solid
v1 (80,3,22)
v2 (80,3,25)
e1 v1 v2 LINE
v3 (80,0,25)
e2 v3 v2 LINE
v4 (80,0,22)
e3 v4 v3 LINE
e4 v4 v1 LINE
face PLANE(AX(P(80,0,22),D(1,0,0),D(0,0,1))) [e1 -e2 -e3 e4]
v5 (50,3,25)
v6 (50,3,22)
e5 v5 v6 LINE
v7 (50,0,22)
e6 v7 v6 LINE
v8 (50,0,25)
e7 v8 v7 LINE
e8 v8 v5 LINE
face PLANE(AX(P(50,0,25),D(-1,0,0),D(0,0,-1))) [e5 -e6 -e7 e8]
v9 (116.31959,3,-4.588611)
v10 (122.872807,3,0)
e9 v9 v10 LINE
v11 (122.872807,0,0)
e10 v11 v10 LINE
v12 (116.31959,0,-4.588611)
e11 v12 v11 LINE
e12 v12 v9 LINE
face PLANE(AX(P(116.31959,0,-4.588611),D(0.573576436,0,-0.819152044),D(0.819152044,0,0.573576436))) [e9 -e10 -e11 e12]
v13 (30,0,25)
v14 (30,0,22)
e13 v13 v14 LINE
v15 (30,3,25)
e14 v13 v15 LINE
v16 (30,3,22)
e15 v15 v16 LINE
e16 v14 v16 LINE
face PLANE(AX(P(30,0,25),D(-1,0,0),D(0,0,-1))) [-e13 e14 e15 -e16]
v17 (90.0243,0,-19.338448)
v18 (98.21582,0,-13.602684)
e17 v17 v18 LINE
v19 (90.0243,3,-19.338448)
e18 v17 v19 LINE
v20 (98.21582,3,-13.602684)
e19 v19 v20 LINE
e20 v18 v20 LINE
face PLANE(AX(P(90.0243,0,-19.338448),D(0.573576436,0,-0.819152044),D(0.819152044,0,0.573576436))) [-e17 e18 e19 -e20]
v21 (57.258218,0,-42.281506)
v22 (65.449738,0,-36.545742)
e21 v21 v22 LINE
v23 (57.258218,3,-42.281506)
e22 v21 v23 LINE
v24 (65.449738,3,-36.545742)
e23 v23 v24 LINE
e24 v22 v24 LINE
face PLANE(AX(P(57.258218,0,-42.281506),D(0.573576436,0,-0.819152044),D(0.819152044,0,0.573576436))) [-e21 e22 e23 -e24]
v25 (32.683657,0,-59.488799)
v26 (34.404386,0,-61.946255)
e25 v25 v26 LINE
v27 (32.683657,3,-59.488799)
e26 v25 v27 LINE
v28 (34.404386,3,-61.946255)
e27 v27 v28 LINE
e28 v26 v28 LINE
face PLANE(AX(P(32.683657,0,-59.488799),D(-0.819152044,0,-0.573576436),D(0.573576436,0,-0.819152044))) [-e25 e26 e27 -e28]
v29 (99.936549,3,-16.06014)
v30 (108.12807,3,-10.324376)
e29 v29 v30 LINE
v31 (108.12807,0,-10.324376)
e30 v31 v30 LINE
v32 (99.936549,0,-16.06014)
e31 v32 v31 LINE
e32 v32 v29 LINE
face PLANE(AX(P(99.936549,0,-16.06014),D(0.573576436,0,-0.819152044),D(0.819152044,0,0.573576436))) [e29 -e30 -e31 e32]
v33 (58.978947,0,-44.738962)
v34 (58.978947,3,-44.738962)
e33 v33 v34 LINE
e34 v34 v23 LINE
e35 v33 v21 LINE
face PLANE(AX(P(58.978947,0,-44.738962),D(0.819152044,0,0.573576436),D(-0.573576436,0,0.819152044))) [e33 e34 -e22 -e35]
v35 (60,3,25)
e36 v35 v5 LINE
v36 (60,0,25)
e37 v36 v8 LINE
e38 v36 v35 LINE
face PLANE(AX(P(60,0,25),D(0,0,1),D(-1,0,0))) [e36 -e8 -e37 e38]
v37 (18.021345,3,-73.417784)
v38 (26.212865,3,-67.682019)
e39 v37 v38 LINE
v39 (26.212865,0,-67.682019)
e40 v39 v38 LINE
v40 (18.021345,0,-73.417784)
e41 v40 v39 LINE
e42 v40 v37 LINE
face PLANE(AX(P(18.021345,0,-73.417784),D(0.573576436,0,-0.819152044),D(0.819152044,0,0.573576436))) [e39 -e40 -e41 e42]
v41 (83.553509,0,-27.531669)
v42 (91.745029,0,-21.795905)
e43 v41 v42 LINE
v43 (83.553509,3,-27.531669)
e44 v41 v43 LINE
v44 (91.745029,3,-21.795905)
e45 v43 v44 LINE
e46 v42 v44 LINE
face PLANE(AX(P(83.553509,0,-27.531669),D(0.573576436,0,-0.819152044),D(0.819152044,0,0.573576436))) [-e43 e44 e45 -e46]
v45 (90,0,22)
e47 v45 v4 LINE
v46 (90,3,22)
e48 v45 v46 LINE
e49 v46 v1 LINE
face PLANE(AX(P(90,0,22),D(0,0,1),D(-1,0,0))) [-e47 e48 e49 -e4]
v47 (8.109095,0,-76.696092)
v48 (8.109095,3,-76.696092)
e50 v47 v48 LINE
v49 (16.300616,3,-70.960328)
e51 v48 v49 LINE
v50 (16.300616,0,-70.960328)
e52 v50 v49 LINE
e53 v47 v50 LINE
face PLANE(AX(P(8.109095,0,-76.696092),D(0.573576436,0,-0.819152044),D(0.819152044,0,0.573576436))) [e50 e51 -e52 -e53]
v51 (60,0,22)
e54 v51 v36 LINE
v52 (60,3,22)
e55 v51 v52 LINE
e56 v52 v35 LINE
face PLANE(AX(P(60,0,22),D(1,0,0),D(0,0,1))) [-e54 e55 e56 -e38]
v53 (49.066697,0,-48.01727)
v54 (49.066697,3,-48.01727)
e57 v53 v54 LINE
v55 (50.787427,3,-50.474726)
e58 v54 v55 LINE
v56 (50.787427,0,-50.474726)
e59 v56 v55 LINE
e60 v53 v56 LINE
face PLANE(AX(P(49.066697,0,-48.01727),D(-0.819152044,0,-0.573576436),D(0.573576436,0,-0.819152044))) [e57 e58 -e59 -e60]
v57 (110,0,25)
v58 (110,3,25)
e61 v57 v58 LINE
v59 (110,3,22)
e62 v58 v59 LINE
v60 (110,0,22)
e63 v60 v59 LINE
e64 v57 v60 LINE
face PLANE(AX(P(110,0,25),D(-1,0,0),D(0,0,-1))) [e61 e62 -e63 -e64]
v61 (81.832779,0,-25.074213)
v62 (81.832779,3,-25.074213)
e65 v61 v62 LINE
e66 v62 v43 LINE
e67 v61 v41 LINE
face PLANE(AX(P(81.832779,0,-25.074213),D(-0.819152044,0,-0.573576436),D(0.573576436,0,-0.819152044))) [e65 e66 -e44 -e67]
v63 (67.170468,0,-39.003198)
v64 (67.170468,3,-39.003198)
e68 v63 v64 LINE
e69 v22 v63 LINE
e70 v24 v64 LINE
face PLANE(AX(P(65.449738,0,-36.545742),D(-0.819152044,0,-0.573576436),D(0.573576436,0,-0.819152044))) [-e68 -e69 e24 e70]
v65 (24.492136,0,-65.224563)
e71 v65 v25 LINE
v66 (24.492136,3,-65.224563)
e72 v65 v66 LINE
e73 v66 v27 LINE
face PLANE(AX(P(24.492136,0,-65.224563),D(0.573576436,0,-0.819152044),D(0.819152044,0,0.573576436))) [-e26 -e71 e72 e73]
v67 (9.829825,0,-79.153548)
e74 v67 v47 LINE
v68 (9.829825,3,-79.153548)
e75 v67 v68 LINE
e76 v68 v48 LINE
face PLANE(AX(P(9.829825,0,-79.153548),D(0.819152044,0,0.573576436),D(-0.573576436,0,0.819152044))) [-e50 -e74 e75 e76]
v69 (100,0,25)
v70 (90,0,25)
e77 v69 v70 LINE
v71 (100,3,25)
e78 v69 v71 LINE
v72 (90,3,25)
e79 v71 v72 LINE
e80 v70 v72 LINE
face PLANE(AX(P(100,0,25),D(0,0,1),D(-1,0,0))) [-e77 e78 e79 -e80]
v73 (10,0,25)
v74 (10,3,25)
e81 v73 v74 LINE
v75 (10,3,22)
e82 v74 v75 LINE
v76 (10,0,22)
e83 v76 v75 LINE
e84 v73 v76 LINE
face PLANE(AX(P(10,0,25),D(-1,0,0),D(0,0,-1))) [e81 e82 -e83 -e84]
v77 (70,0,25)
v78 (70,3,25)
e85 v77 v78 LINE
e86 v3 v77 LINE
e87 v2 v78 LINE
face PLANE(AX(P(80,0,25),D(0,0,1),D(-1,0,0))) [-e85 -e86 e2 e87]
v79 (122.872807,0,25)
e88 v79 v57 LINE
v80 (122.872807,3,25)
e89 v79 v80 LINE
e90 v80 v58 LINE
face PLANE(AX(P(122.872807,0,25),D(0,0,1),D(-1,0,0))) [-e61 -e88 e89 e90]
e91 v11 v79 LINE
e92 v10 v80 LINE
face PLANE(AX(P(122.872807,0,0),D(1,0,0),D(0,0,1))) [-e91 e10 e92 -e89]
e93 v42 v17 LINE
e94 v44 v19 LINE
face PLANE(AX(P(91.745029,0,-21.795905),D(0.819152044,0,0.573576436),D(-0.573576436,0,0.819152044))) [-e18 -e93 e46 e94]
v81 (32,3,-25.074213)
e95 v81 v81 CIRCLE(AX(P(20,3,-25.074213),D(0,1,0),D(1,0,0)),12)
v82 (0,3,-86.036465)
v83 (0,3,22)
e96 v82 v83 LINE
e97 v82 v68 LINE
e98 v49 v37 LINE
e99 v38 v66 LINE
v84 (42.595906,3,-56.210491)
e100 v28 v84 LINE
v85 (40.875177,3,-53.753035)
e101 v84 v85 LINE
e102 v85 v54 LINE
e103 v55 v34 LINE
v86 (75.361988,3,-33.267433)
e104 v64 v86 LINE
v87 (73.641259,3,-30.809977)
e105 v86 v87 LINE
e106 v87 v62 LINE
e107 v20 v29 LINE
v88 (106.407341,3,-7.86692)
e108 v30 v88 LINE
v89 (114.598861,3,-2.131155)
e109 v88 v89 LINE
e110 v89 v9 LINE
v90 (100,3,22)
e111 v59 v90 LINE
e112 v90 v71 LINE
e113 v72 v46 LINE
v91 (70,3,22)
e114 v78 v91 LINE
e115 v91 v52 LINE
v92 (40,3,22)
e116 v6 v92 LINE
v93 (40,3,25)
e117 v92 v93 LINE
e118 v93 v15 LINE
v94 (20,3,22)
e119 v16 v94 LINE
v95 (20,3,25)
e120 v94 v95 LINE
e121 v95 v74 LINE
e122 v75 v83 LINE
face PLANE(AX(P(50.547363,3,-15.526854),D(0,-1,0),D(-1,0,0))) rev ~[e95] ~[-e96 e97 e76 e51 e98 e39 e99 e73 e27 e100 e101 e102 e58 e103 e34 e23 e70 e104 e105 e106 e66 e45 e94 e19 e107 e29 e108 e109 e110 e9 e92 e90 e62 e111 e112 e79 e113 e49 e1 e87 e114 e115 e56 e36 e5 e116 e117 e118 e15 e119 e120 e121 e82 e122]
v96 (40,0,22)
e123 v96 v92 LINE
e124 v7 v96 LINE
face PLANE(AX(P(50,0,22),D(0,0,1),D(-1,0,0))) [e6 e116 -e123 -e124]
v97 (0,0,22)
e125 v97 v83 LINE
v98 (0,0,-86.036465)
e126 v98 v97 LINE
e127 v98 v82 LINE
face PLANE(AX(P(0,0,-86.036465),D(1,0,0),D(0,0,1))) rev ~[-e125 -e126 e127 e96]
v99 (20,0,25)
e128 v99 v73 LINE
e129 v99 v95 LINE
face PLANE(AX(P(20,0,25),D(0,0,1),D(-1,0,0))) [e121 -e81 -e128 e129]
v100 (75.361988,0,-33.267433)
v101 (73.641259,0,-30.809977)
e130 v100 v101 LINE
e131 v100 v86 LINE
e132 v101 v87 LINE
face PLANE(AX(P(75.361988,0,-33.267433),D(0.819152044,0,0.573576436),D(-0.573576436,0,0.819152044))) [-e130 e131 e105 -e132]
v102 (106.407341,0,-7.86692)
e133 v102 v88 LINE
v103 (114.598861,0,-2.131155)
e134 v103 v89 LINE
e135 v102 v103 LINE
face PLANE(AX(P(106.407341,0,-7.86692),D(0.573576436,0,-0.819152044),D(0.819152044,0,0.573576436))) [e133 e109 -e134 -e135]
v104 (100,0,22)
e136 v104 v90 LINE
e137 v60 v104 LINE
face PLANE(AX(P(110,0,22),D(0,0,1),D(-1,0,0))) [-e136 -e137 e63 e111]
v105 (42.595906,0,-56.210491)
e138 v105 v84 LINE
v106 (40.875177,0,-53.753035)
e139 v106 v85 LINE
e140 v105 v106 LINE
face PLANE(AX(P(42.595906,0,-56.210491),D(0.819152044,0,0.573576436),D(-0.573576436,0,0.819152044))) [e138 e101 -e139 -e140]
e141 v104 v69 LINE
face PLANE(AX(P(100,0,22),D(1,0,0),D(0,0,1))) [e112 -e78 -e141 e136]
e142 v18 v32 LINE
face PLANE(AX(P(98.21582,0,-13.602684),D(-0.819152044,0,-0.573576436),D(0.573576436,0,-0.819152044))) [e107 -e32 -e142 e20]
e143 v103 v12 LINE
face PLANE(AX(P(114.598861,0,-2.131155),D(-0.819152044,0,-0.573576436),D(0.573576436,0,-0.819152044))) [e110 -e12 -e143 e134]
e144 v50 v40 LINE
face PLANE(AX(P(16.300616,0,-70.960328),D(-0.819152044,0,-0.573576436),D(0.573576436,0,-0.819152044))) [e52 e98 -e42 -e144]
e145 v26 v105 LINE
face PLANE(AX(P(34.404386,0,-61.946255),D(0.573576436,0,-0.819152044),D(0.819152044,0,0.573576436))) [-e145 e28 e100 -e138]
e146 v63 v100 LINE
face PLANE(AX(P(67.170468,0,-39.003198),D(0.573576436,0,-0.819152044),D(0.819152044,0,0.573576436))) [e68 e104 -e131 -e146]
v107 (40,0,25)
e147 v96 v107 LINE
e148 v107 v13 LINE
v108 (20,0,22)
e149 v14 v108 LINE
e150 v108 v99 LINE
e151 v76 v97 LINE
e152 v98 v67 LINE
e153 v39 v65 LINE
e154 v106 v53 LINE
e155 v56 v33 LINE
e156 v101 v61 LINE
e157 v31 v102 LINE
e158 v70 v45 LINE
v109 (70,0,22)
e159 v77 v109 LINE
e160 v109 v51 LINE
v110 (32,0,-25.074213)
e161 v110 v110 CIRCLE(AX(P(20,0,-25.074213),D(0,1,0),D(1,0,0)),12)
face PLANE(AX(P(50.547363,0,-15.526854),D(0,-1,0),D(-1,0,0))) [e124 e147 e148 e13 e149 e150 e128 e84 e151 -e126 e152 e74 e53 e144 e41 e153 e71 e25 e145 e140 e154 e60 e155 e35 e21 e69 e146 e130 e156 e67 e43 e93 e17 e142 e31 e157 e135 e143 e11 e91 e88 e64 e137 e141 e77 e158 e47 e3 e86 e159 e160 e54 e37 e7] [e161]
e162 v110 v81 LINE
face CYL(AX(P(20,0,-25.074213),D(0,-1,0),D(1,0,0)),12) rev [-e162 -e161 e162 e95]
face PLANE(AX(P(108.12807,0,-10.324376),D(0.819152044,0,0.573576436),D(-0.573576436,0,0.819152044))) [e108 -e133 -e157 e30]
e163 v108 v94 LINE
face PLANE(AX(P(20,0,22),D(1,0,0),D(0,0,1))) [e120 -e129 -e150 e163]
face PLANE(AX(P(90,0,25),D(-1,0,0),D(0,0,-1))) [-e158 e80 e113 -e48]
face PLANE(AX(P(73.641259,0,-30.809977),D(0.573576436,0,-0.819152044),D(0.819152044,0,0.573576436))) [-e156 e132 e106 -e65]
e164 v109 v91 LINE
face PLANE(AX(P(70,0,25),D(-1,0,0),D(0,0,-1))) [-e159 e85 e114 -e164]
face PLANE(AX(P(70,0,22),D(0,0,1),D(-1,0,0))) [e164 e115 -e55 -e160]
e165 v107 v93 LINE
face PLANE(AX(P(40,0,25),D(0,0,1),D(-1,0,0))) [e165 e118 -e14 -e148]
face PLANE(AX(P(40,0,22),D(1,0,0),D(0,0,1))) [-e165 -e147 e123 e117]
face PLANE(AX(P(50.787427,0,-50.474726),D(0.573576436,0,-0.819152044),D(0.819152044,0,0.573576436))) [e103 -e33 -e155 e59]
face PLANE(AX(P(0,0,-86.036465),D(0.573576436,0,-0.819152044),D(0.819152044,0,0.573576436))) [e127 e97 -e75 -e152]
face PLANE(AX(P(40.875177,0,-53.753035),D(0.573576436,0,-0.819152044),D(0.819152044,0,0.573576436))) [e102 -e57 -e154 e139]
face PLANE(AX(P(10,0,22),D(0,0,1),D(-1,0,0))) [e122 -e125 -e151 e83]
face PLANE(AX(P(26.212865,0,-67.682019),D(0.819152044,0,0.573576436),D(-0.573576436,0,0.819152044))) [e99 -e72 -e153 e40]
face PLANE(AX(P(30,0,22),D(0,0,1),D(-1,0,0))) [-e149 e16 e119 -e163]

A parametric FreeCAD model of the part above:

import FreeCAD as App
import Part
import Sketcher
Q = App.Units.Quantity

doc = App.newDocument("Part")
body = doc.addObject("PartDesign::Body", "Body")

# Sketch on XZ plane
sketch1 = doc.addObject("Sketcher::SketchObject", "Sketch")
body.addObject(sketch1)
sketch1.AttachmentSupport = (doc.XZ_Plane, [""])
sketch1.MapMode = "FlatFace"
sketch1.addGeometry([
    Part.LineSegment(App.Vector(0, -86, 0), App.Vector(0, 22, 0)),  # 0
    Part.LineSegment(App.Vector(0, 22, 0), App.Vector(10, 22, 0)),  # 1
    Part.LineSegment(App.Vector(10, 22, 0), App.Vector(10, 25, 0)),  # 2
    Part.LineSegment(App.Vector(10, 25, 0), App.Vector(20, 25, 0)),  # 3
    Part.LineSegment(App.Vector(20, 25, 0), App.Vector(20, 22, 0)),  # 4
    Part.LineSegment(App.Vector(20, 22, 0), App.Vector(30, 22, 0)),  # 5
    Part.LineSegment(App.Vector(30, 22, 0), App.Vector(30, 25, 0)),  # 6
    Part.LineSegment(App.Vector(30, 25, 0), App.Vector(40, 25, 0)),  # 7
    Part.LineSegment(App.Vector(40, 25, 0), App.Vector(40, 22, 0)),  # 8
    Part.LineSegment(App.Vector(40, 22, 0), App.Vector(50, 22, 0)),  # 9
    Part.LineSegment(App.Vector(50, 22, 0), App.Vector(50, 25, 0)),  # 10
    Part.LineSegment(App.Vector(50, 25, 0), App.Vector(60, 25, 0)),  # 11
    Part.LineSegment(App.Vector(60, 25, 0), App.Vector(60, 22, 0)),  # 12
    Part.LineSegment(App.Vector(60, 22, 0), App.Vector(70, 22, 0)),  # 13
    Part.LineSegment(App.Vector(70, 22, 0), App.Vector(70, 25, 0)),  # 14
    Part.LineSegment(App.Vector(70, 25, 0), App.Vector(80, 25, 0)),  # 15
    Part.LineSegment(App.Vector(80, 25, 0), App.Vector(80, 22, 0)),  # 16
    Part.LineSegment(App.Vector(80, 22, 0), App.Vector(90, 22, 0)),  # 17
    Part.LineSegment(App.Vector(90, 22, 0), App.Vector(90, 25, 0)),  # 18
    Part.LineSegment(App.Vector(90, 25, 0), App.Vector(100, 25, 0)),  # 19
    Part.LineSegment(App.Vector(100, 25, 0), App.Vector(100, 22, 0)),  # 20
    Part.LineSegment(App.Vector(100, 22, 0), App.Vector(110, 22, 0)),  # 21
    Part.LineSegment(App.Vector(110, 22, 0), App.Vector(110, 25, 0)),  # 22
    Part.LineSegment(App.Vector(110, 25, 0), App.Vector(122.9, 25, 0)),  # 23
    Part.LineSegment(App.Vector(122.9, 25, 0), App.Vector(122.9, 0, 0)),  # 24
    Part.LineSegment(App.Vector(122.9, 0, 0), App.Vector(116.3, -4.6, 0)),  # 25
    Part.LineSegment(App.Vector(116.3, -4.6, 0), App.Vector(114.6, -2.1, 0)),  # 26
    Part.LineSegment(App.Vector(114.6, -2.1, 0), App.Vector(106.4, -7.9, 0)),  # 27
    Part.LineSegment(App.Vector(106.4, -7.9, 0), App.Vector(108.1, -10.3, 0)),  # 28
    Part.LineSegment(App.Vector(108.1, -10.3, 0), App.Vector(99.9, -16.1, 0)),  # 29
    Part.LineSegment(App.Vector(99.9, -16.1, 0), App.Vector(98.2, -13.6, 0)),  # 30
    Part.LineSegment(App.Vector(98.2, -13.6, 0), App.Vector(90, -19.3, 0)),  # 31
    Part.LineSegment(App.Vector(90, -19.3, 0), App.Vector(91.7, -21.8, 0)),  # 32
    Part.LineSegment(App.Vector(91.7, -21.8, 0), App.Vector(83.6, -27.5, 0)),  # 33
    Part.LineSegment(App.Vector(83.6, -27.5, 0), App.Vector(81.8, -25.1, 0)),  # 34
    Part.LineSegment(App.Vector(81.8, -25.1, 0), App.Vector(73.6, -30.8, 0)),  # 35
    Part.LineSegment(App.Vector(73.6, -30.8, 0), App.Vector(75.4, -33.3, 0)),  # 36
    Part.LineSegment(App.Vector(75.4, -33.3, 0), App.Vector(67.2, -39, 0)),  # 37
    Part.LineSegment(App.Vector(67.2, -39, 0), App.Vector(65.4, -36.5, 0)),  # 38
    Part.LineSegment(App.Vector(65.4, -36.5, 0), App.Vector(57.3, -42.3, 0)),  # 39
    Part.LineSegment(App.Vector(57.3, -42.3, 0), App.Vector(59, -44.7, 0)),  # 40
    Part.LineSegment(App.Vector(59, -44.7, 0), App.Vector(50.8, -50.5, 0)),  # 41
    Part.LineSegment(App.Vector(50.8, -50.5, 0), App.Vector(49.1, -48, 0)),  # 42
    Part.LineSegment(App.Vector(49.1, -48, 0), App.Vector(40.9, -53.8, 0)),  # 43
    Part.LineSegment(App.Vector(40.9, -53.8, 0), App.Vector(42.6, -56.2, 0)),  # 44
    Part.LineSegment(App.Vector(42.6, -56.2, 0), App.Vector(34.4, -61.9, 0)),  # 45
    Part.LineSegment(App.Vector(34.4, -61.9, 0), App.Vector(32.7, -59.5, 0)),  # 46
    Part.LineSegment(App.Vector(32.7, -59.5, 0), App.Vector(24.5, -65.2, 0)),  # 47
    Part.LineSegment(App.Vector(24.5, -65.2, 0), App.Vector(26.2, -67.7, 0)),  # 48
    Part.LineSegment(App.Vector(26.2, -67.7, 0), App.Vector(18, -73.4, 0)),  # 49
    Part.LineSegment(App.Vector(18, -73.4, 0), App.Vector(16.3, -71, 0)),  # 50
    Part.LineSegment(App.Vector(16.3, -71, 0), App.Vector(8.1, -76.7, 0)),  # 51
    Part.LineSegment(App.Vector(8.1, -76.7, 0), App.Vector(9.8, -79.2, 0)),  # 52
    Part.LineSegment(App.Vector(9.8, -79.2, 0), App.Vector(0, -86, 0)),  # 53
    Part.Circle(App.Vector(20, -25.1, 0), App.Vector(0, 0, 1), 12),  # 54
], False)
sketch1.addConstraint([
    Sketcher.Constraint("Coincident", 0, 2, 1, 1),
    Sketcher.Constraint("Coincident", 1, 2, 2, 1),
    Sketcher.Constraint("Coincident", 2, 2, 3, 1),
    Sketcher.Constraint("Coincident", 3, 2, 4, 1),
    Sketcher.Constraint("Coincident", 4, 2, 5, 1),
    Sketcher.Constraint("Coincident", 5, 2, 6, 1),
    Sketcher.Constraint("Coincident", 6, 2, 7, 1),
    Sketcher.Constraint("Coincident", 7, 2, 8, 1),
    Sketcher.Constraint("Coincident", 8, 2, 9, 1),
    Sketcher.Constraint("Coincident", 9, 2, 10, 1),
    Sketcher.Constraint("Coincident", 10, 2, 11, 1),
    Sketcher.Constraint("Coincident", 11, 2, 12, 1),
    Sketcher.Constraint("Coincident", 12, 2, 13, 1),
    Sketcher.Constraint("Coincident", 13, 2, 14, 1),
    Sketcher.Constraint("Coincident", 14, 2, 15, 1),
    Sketcher.Constraint("Coincident", 15, 2, 16, 1),
    Sketcher.Constraint("Coincident", 16, 2, 17, 1),
    Sketcher.Constraint("Coincident", 17, 2, 18, 1),
    Sketcher.Constraint("Coincident", 18, 2, 19, 1),
    Sketcher.Constraint("Coincident", 19, 2, 20, 1),
    Sketcher.Constraint("Coincident", 20, 2, 21, 1),
    Sketcher.Constraint("Coincident", 21, 2, 22, 1),
    Sketcher.Constraint("Coincident", 22, 2, 23, 1),
    Sketcher.Constraint("Coincident", 23, 2, 24, 1),
    Sketcher.Constraint("Coincident", 24, 2, 25, 1),
    Sketcher.Constraint("Coincident", 25, 2, 26, 1),
    Sketcher.Constraint("Coincident", 26, 2, 27, 1),
    Sketcher.Constraint("Coincident", 27, 2, 28, 1),
    Sketcher.Constraint("Coincident", 28, 2, 29, 1),
    Sketcher.Constraint("Coincident", 29, 2, 30, 1),
    Sketcher.Constraint("Coincident", 30, 2, 31, 1),
    Sketcher.Constraint("Coincident", 31, 2, 32, 1),
    Sketcher.Constraint("Coincident", 32, 2, 33, 1),
    Sketcher.Constraint("Coincident", 33, 2, 34, 1),
    Sketcher.Constraint("Coincident", 34, 2, 35, 1),
    Sketcher.Constraint("Coincident", 35, 2, 36, 1),
    Sketcher.Constraint("Coincident", 36, 2, 37, 1),
    Sketcher.Constraint("Coincident", 37, 2, 38, 1),
    Sketcher.Constraint("Coincident", 38, 2, 39, 1),
    Sketcher.Constraint("Coincident", 39, 2, 40, 1),
    Sketcher.Constraint("Coincident", 40, 2, 41, 1),
    Sketcher.Constraint("Coincident", 41, 2, 42, 1),
    Sketcher.Constraint("Coincident", 42, 2, 43, 1),
    Sketcher.Constraint("Coincident", 43, 2, 44, 1),
    Sketcher.Constraint("Coincident", 44, 2, 45, 1),
    Sketcher.Constraint("Coincident", 45, 2, 46, 1),
    Sketcher.Constraint("Coincident", 46, 2, 47, 1),
    Sketcher.Constraint("Coincident", 47, 2, 48, 1),
    Sketcher.Constraint("Coincident", 48, 2, 49, 1),
    Sketcher.Constraint("Coincident", 49, 2, 50, 1),
    Sketcher.Constraint("Coincident", 50, 2, 51, 1),
    Sketcher.Constraint("Coincident", 51, 2, 52, 1),
    Sketcher.Constraint("Coincident", 52, 2, 53, 1),
    Sketcher.Constraint("Coincident", 53, 2, 0, 1),
    Sketcher.Constraint("Vertical", 0),
    Sketcher.Constraint("Horizontal", 1),
    Sketcher.Constraint("Vertical", 2),
    Sketcher.Constraint("Horizontal", 3),
    Sketcher.Constraint("Vertical", 4),
    Sketcher.Constraint("Horizontal", 5),
    Sketcher.Constraint("Vertical", 6),
    Sketcher.Constraint("Horizontal", 7),
    Sketcher.Constraint("Vertical", 8),
    Sketcher.Constraint("Horizontal", 9),
    Sketcher.Constraint("Vertical", 10),
    Sketcher.Constraint("Horizontal", 11),
    Sketcher.Constraint("Vertical", 12),
    Sketcher.Constraint("Horizontal", 13),
    Sketcher.Constraint("Vertical", 14),
    Sketcher.Constraint("Horizontal", 15),
    Sketcher.Constraint("Vertical", 16),
    Sketcher.Constraint("Horizontal", 17),
    Sketcher.Constraint("Vertical", 18),
    Sketcher.Constraint("Horizontal", 19),
    Sketcher.Constraint("Vertical", 20),
    Sketcher.Constraint("Horizontal", 21),
    Sketcher.Constraint("Vertical", 22),
    Sketcher.Constraint("Horizontal", 23),
    Sketcher.Constraint("Vertical", 24),
    Sketcher.Constraint("PointOnObject", 0, 2, -2),
    Sketcher.Constraint("PointOnObject", 24, 2, -1),
    Sketcher.Constraint("Perpendicular", 25, 26),
    Sketcher.Constraint("Perpendicular", 26, 27),
    Sketcher.Constraint("Perpendicular", 27, 28),
    Sketcher.Constraint("Perpendicular", 28, 29),
    Sketcher.Constraint("Perpendicular", 29, 30),
    Sketcher.Constraint("Perpendicular", 30, 31),
    Sketcher.Constraint("Perpendicular", 31, 32),
    Sketcher.Constraint("Perpendicular", 32, 33),
    Sketcher.Constraint("Perpendicular", 33, 34),
    Sketcher.Constraint("Perpendicular", 34, 35),
    Sketcher.Constraint("Perpendicular", 35, 36),
    Sketcher.Constraint("Perpendicular", 36, 37),
    Sketcher.Constraint("Perpendicular", 37, 38),
    Sketcher.Constraint("Perpendicular", 38, 39),
    Sketcher.Constraint("Perpendicular", 39, 40),
    Sketcher.Constraint("Perpendicular", 40, 41),
    Sketcher.Constraint("Perpendicular", 41, 42),
    Sketcher.Constraint("Perpendicular", 42, 43),
    Sketcher.Constraint("Perpendicular", 43, 44),
    Sketcher.Constraint("Perpendicular", 44, 45),
    Sketcher.Constraint("Perpendicular", 45, 46),
    Sketcher.Constraint("Perpendicular", 46, 47),
    Sketcher.Constraint("Perpendicular", 47, 48),
    Sketcher.Constraint("Perpendicular", 48, 49),
    Sketcher.Constraint("Perpendicular", 49, 50),
    Sketcher.Constraint("Perpendicular", 50, 51),
    Sketcher.Constraint("Perpendicular", 51, 52),
    Sketcher.Constraint("Perpendicular", 52, 53),
    Sketcher.Constraint("Horizontal", 1, 2, 4, 2),
    Sketcher.Constraint("Horizontal", 3, 2, 6, 2),
    Sketcher.Constraint("Horizontal", 5, 2, 8, 2),
    Sketcher.Constraint("Horizontal", 7, 2, 10, 2),
    Sketcher.Constraint("Horizontal", 9, 2, 12, 2),
    Sketcher.Constraint("Horizontal", 11, 2, 14, 2),
    Sketcher.Constraint("Horizontal", 13, 2, 16, 2),
    Sketcher.Constraint("Horizontal", 15, 2, 18, 2),
    Sketcher.Constraint("Horizontal", 17, 2, 20, 2),
    Sketcher.Constraint("Horizontal", 19, 2, 22, 2),
    Sketcher.Constraint("Horizontal", 54, 3, 34, 2),
    Sketcher.Constraint("Vertical", 54, 3, 3, 2),
    Sketcher.Constraint("Equal", 1, 3),
    Sketcher.Constraint("Equal", 3, 5),
    Sketcher.Constraint("Equal", 5, 7),
    Sketcher.Constraint("Equal", 7, 9),
    Sketcher.Constraint("Equal", 9, 11),
    Sketcher.Constraint("Equal", 11, 13),
    Sketcher.Constraint("Equal", 13, 15),
    Sketcher.Constraint("Equal", 15, 17),
    Sketcher.Constraint("Equal", 17, 19),
    Sketcher.Constraint("Equal", 19, 21),
    Sketcher.Constraint("Equal", 26, 28),
    Sketcher.Constraint("Equal", 27, 29),
    Sketcher.Constraint("Equal", 28, 30),
    Sketcher.Constraint("Equal", 29, 31),
    Sketcher.Constraint("Equal", 30, 32),
    Sketcher.Constraint("Equal", 31, 33),
    Sketcher.Constraint("Equal", 32, 34),
    Sketcher.Constraint("Equal", 33, 35),
    Sketcher.Constraint("Equal", 34, 36),
    Sketcher.Constraint("Equal", 35, 37),
    Sketcher.Constraint("Equal", 36, 38),
    Sketcher.Constraint("Equal", 37, 39),
    Sketcher.Constraint("Equal", 38, 40),
    Sketcher.Constraint("Equal", 39, 41),
    Sketcher.Constraint("Equal", 40, 42),
    Sketcher.Constraint("Equal", 41, 43),
    Sketcher.Constraint("Equal", 42, 44),
    Sketcher.Constraint("Equal", 43, 45),
    Sketcher.Constraint("Equal", 44, 46),
    Sketcher.Constraint("Equal", 45, 47),
    Sketcher.Constraint("Equal", 46, 48),
    Sketcher.Constraint("Equal", 47, 49),
    Sketcher.Constraint("Equal", 48, 50),
    Sketcher.Constraint("Equal", 49, 51),
    Sketcher.Constraint("Equal", 50, 52),
    Sketcher.Constraint("Diameter", 54, 24.0),
    Sketcher.Constraint("DistanceX", 1, 1, 1, 2, 10.0),
    Sketcher.Constraint("DistanceY", 2, 1, 2, 2, 3.0),
    Sketcher.Constraint("DistanceY", 24, 2, 24, 1, 25.0),
    Sketcher.Constraint("Angle", 25, Q("-145 deg")),
    Sketcher.Constraint("Distance", 25, 8.0),
    Sketcher.Constraint("Distance", 26, 3.0),
    Sketcher.Constraint("Distance", 27, 10.0),
    Sketcher.Constraint("Distance", 53, 12.0),
])
pad1 = doc.addObject("PartDesign::Pad", "Pad")
body.addObject(pad1)
pad1.Profile = sketch1
pad1.Length = 3
pad1.Reversed = True

doc.recompute()
